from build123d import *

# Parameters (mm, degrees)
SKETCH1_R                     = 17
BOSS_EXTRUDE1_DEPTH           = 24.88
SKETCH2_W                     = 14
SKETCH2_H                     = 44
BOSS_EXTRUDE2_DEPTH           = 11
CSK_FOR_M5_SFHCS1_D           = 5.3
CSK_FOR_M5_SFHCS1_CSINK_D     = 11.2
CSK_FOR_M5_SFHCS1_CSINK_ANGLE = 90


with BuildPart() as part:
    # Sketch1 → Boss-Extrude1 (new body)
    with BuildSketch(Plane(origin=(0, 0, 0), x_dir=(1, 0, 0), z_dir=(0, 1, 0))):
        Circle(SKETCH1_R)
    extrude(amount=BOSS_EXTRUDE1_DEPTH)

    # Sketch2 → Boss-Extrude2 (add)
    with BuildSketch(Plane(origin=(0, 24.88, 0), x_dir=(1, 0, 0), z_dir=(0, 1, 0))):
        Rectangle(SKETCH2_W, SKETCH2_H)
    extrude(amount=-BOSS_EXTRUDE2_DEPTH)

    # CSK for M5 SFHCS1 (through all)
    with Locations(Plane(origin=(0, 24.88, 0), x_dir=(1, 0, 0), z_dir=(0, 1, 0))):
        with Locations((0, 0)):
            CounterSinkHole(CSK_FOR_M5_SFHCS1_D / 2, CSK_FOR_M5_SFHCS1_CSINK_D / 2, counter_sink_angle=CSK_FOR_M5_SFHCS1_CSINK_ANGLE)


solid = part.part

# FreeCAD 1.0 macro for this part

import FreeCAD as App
import Part
import Sketcher
from FreeCAD import Vector


def add_polygon(sketch, points):
    """Adds a closed chain of lines whose ends are joined by coincident constraints."""
    first, n = sketch.GeometryCount, len(points)
    for a, b in zip(points, points[1:] + points[:1]):
        sketch.addGeometry(Part.LineSegment(App.Vector(*a, 0), App.Vector(*b, 0)), False)
    for i in range(n):
        sketch.addConstraint(Sketcher.Constraint("Coincident", first + i, 2, first + (i + 1) % n, 1))

doc = App.newDocument("Part")
body = doc.addObject("PartDesign::Body", "Body")

sketch1 = body.newObject("Sketcher::SketchObject", "Sketch")
sketch1.AttachmentSupport = (doc.getObject("XZ_Plane"), [""])
sketch1.MapMode = "FlatFace"
sketch1.addGeometry(Part.Circle(Vector(0, 0, 0), Vector(0, 0, 1), 17), False)
sketch1.addConstraint([
    Sketcher.Constraint("Coincident", 0, 3, -1, 1),
    Sketcher.Constraint("Diameter", 0, 34.0),
])
pad1 = body.newObject("PartDesign::Pad", "Pad")
pad1.Profile = sketch1
pad1.Length = 24.88
pad1.Reversed = True

sketch2 = body.newObject("Sketcher::SketchObject", "Sketch001")
sketch2.AttachmentSupport = (doc.getObject("XZ_Plane"), [""])
sketch2.MapMode = "FlatFace"
sketch2.AttachmentOffset = App.Placement(Vector(0, 0, -24.88), App.Rotation())
add_polygon(sketch2, [(-7, -22), (-7, 22), (7, 22), (7, -22)])
sketch2.addConstraint([
    Sketcher.Constraint("Vertical", 0),
    Sketcher.Constraint("Horizontal", 1),
    Sketcher.Constraint("Vertical", 2),
    Sketcher.Constraint("Horizontal", 3),
    Sketcher.Constraint("Symmetric", 0, 2, 2, 2, -1, 1),
    Sketcher.Constraint("DistanceX", 1, 1, 1, 2, 14.0),
    Sketcher.Constraint("DistanceY", 0, 1, 0, 2, 44.0),
])
pad2 = body.newObject("PartDesign::Pad", "Pad001")
pad2.Profile = sketch2
pad2.Length = 11

sketch3 = body.newObject("Sketcher::SketchObject", "Sketch002")
sketch3.AttachmentSupport = (doc.getObject("XZ_Plane"), [""])
sketch3.MapMode = "FlatFace"
sketch3.AttachmentOffset = App.Placement(Vector(0, 0, -24.88), App.Rotation())
sketch3.addGeometry(Part.Circle(Vector(0, 0, 0), Vector(0, 0, 1), 2.65), False)
sketch3.addConstraint([
    Sketcher.Constraint("Coincident", 0, 3, -1, 1),
    Sketcher.Constraint("Diameter", 0, 5.3),
])
doc.recompute()
hole = body.newObject("PartDesign::Hole", "Hole")
hole.Profile = sketch3
hole.ThreadType = "None"
hole.Diameter = 5.3
hole.DepthType = "ThroughAll"
hole.HoleCutType = "Countersink"
hole.HoleCutDiameter = 11.2
hole.HoleCutCountersinkAngle = 90
hole.Reversed = True

doc.recompute()
